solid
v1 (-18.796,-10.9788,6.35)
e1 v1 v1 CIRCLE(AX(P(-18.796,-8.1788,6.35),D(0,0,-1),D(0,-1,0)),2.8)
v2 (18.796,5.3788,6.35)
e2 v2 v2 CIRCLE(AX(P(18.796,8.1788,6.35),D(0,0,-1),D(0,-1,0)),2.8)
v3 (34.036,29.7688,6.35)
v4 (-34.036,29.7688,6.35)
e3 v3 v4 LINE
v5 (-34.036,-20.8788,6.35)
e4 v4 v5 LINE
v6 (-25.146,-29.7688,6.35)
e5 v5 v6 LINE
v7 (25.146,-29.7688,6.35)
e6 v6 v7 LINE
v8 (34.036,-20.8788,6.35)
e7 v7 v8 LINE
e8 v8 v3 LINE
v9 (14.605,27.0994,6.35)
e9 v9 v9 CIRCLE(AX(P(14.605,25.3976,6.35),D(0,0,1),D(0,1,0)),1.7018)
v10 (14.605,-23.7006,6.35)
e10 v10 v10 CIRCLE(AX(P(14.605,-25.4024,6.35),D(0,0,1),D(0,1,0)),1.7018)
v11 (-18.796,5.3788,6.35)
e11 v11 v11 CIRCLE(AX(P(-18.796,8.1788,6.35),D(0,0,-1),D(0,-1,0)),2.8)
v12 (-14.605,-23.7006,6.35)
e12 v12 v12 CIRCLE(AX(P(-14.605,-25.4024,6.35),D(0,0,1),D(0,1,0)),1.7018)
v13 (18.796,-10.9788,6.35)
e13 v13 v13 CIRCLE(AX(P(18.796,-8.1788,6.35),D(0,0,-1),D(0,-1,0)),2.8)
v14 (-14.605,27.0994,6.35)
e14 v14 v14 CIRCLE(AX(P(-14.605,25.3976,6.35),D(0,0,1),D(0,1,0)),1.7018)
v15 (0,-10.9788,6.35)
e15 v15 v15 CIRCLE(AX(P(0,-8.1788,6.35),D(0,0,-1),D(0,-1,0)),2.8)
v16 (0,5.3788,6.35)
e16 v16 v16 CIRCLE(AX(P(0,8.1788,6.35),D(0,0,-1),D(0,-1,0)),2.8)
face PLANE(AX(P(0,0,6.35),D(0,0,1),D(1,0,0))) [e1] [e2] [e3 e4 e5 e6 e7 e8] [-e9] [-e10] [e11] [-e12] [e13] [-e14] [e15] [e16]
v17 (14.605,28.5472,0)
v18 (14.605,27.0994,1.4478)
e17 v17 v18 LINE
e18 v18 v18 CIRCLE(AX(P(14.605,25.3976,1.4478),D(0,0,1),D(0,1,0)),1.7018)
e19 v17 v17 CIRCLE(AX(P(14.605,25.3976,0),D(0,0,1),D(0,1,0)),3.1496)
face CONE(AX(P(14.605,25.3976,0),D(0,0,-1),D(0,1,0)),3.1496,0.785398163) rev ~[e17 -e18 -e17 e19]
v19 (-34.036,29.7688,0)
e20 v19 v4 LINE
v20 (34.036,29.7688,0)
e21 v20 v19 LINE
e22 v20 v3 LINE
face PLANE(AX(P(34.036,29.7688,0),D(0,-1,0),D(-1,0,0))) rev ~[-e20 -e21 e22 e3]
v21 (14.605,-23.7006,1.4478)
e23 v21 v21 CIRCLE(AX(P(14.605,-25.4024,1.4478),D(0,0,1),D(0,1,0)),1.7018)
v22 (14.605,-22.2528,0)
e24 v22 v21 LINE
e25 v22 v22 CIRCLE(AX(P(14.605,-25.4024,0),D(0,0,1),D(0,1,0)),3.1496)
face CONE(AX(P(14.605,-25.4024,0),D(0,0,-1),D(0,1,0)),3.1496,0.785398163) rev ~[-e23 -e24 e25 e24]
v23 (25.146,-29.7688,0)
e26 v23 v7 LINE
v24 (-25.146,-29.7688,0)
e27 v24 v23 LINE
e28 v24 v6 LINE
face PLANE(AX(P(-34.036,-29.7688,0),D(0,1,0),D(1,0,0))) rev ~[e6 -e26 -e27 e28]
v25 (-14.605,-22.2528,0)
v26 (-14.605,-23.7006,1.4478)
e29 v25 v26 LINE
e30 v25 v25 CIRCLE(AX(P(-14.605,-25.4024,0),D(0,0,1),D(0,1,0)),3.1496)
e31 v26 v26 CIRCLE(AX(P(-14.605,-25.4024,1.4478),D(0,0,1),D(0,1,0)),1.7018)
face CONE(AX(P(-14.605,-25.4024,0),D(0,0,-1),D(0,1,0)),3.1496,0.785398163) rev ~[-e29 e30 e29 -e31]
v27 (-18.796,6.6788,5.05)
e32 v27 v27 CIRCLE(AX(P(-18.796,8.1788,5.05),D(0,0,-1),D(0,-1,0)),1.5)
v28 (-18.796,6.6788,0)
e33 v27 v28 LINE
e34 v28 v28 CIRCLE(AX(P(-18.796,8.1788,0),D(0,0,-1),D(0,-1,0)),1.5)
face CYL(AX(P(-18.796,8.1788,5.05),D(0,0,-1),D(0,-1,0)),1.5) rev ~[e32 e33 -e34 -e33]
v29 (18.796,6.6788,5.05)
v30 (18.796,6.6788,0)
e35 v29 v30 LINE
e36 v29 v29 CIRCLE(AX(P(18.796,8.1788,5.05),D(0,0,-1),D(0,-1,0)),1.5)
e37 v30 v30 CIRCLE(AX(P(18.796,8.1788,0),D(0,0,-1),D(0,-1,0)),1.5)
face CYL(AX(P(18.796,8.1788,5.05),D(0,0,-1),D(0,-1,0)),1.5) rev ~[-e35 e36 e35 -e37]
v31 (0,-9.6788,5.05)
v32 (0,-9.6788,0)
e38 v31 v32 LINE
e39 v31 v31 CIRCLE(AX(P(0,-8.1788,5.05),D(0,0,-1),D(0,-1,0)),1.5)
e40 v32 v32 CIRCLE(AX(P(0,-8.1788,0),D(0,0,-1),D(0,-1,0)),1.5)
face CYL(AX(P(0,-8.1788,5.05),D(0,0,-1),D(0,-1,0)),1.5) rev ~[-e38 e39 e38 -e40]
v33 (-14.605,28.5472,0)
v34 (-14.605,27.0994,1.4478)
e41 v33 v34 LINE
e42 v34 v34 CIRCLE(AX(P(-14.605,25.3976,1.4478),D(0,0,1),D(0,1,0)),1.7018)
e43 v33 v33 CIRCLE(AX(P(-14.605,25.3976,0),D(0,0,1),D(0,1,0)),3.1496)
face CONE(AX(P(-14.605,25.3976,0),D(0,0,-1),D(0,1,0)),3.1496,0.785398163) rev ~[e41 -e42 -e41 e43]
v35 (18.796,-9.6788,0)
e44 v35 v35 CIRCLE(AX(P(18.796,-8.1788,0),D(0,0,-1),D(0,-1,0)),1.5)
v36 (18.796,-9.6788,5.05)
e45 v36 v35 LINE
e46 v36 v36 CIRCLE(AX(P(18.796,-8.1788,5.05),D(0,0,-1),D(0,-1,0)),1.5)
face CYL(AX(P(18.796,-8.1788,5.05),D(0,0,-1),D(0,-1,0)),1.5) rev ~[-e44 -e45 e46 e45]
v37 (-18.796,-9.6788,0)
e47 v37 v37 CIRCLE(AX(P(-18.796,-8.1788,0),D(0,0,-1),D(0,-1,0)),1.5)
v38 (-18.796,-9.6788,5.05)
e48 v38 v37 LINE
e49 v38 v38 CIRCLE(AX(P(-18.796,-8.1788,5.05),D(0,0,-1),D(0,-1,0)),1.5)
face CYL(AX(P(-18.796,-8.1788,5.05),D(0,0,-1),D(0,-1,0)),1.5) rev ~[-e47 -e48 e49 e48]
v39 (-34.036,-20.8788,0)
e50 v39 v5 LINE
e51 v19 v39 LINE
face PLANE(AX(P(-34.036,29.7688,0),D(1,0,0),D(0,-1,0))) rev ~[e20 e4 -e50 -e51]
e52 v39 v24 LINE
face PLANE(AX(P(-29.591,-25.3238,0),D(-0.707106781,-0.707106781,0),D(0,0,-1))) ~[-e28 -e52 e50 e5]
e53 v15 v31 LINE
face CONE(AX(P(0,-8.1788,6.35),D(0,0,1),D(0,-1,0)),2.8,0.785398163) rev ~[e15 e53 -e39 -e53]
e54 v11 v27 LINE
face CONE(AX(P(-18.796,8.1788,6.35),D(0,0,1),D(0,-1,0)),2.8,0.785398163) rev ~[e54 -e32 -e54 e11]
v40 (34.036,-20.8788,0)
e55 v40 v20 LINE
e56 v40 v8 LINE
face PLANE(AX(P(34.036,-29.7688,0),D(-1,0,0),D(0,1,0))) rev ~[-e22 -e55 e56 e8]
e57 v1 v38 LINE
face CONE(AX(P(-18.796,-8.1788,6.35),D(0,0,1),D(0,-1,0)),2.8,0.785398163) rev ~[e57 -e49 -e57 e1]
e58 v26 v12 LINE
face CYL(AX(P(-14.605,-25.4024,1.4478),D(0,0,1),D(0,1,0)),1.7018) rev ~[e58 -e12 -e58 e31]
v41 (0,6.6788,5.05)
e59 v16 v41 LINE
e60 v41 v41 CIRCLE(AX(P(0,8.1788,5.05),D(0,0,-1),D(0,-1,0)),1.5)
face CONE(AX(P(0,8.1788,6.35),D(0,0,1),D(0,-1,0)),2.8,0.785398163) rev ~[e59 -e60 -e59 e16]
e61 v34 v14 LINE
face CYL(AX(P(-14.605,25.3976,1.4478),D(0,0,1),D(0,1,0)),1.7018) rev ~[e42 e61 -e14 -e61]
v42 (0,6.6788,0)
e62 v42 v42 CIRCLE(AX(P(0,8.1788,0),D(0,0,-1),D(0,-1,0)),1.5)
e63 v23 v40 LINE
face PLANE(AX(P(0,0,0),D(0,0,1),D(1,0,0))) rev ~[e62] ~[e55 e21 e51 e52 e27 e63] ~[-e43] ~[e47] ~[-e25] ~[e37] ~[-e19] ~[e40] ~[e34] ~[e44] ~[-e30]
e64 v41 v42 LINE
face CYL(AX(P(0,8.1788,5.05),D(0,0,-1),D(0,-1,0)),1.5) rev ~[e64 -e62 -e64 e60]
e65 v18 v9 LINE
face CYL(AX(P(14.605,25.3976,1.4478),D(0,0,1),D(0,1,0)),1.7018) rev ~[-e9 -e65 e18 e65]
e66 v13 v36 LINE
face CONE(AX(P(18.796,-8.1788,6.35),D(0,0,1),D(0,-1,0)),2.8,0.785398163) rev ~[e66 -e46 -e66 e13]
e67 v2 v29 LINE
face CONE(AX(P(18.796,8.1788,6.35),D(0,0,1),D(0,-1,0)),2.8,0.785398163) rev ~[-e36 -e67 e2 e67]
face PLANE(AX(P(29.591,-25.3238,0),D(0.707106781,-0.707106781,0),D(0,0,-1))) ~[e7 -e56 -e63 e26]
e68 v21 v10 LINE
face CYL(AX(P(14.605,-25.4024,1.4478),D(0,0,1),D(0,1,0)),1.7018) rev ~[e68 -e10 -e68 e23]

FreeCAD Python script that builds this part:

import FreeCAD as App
import Part
import Sketcher

V = App.Vector
Q = App.Units.Quantity


def edges_at(feature, points):
    """Names of the edges that pass closest to the given points."""
    edges = feature.Shape.Edges
    near = lambda p: min(range(len(edges)), key=lambda i: edges[i].distToShape(Part.Vertex(*p))[0])
    return sorted({f"Edge{near(p) + 1}" for p in points})


def add_polygon(sketch, points):
    """Adds a closed chain of lines whose ends are joined by coincident constraints."""
    first, n = sketch.GeometryCount, len(points)
    for a, b in zip(points, points[1:] + points[:1]):
        sketch.addGeometry(Part.LineSegment(App.Vector(*a, 0), App.Vector(*b, 0)), False)
    for i in range(n):
        sketch.addConstraint(Sketcher.Constraint("Coincident", first + i, 2, first + (i + 1) % n, 1))

doc = App.newDocument("Part")
params = doc.addObject("Spreadsheet::Sheet", "Params")
for row, (alias, value) in enumerate([
    ("sketch1_width", "2.68 in"),
    ("sketch1_height", "2.344 in"),
    ("pad1_length", "0.25 in"),
    ("hole_diameter", "0.1181102 in"),
    ("hole_depth", "1 in"),
    ("hole_csink_diameter", "5.6 mm"),
    ("chamfer_size", "0.35 in"),
    ("sketch3_diameter", "0.134 in"),
    ("hole2_diameter", "0.134 in"),
    ("hole2_csink_diameter", "0.248 in"),
], start=1):
    params.set(f"A{row}", alias)
    params.set(f"B{row}", "=" + value)
    params.setAlias(f"B{row}", alias)

body = doc.addObject("PartDesign::Body", "Body")

sketch1 = body.newObject("Sketcher::SketchObject", "Sketch")
sketch1.AttachmentSupport = (doc.getObject("XY_Plane"), [""])
sketch1.MapMode = "FlatFace"
add_polygon(sketch1, [(-34, 30), (-34, -30), (34, -30), (34, 30)])
sketch1.addConstraint([
    Sketcher.Constraint("Vertical", 0),
    Sketcher.Constraint("Horizontal", 1),
    Sketcher.Constraint("Vertical", 2),
    Sketcher.Constraint("Horizontal", 3),
    Sketcher.Constraint("Symmetric", 0, 2, 2, 2, -1, 1),
    Sketcher.Constraint("DistanceX", 1, 1, 1, 2, Q("2.68 in")),
    Sketcher.Constraint("DistanceY", 0, 2, 0, 1, Q("2.344 in")),
])
sketch1.setExpression("Constraints[9]", "Params.sketch1_width")
sketch1.setExpression("Constraints[10]", "Params.sketch1_height")
pad1 = body.newObject("PartDesign::Pad", "Pad")
pad1.Profile = sketch1
pad1.setExpression("Length", "Params.pad1_length")

sketch2 = body.newObject("Sketcher::SketchObject", "Sketch001")
sketch2.AttachmentSupport = (doc.getObject("XY_Plane"), [""])
sketch2.MapMode = "FlatFace"
sketch2.AttachmentOffset = App.Placement(V(0, 0, 0.25 * 25.4), App.Rotation())
sketch2.addGeometry([
    Part.Circle(V(-18.8, 8.2, 0), V(0, 0, 1), 1.5),
    Part.Circle(V(-18.8, -8.2, 0), V(0, 0, 1), 1.5),
    Part.Circle(V(18.8, -8.2, 0), V(0, 0, 1), 1.5),
    Part.Circle(V(18.8, 8.2, 0), V(0, 0, 1), 1.5),
    Part.Circle(V(0, 8.2, 0), V(0, 0, 1), 1.5),
    Part.Circle(V(0, -8.2, 0), V(0, 0, 1), 1.5),
], False)
sketch2.addConstraint([
    Sketcher.Constraint("Equal", 0, 1),
    Sketcher.Constraint("Equal", 1, 2),
    Sketcher.Constraint("Equal", 2, 3),
    Sketcher.Constraint("Equal", 3, 4),
    Sketcher.Constraint("Equal", 4, 5),
    Sketcher.Constraint("Symmetric", 0, 3, 2, 3, -1, 1),
    Sketcher.Constraint("Symmetric", 1, 3, 3, 3, -1, 1),
    Sketcher.Constraint("Symmetric", 4, 3, 5, 3, -1, 1),
    Sketcher.Constraint("Symmetric", 1, 3, 2, 3, -2),
    Sketcher.Constraint("PointOnObject", 4, 3, -2),
    Sketcher.Constraint("Horizontal", 3, 3, 4, 3),
    Sketcher.Constraint("Diameter", 0, Q("0.1181 in")),
    Sketcher.Constraint("DistanceX", 0, 3, -1, 1, Q("0.74 in")),
    Sketcher.Constraint("DistanceY", -1, 1, 0, 3, Q("0.322 in")),
])
doc.recompute()
hole = body.newObject("PartDesign::Hole", "Hole")
hole.Profile = sketch2
hole.ThreadType = "None"
hole.setExpression("Diameter", "Params.hole_diameter")
hole.DepthType = "Dimension"
hole.setExpression("Depth", "Params.hole_depth")
hole.DrillPoint = "Angled"
hole.DrillPointAngle = 118
hole.HoleCutType = "Countersink"
hole.setExpression("HoleCutDiameter", "Params.hole_csink_diameter")
hole.HoleCutCountersinkAngle = 90
doc.recompute()

chamfer = body.newObject("PartDesign::Chamfer", "Chamfer")
chamfer.Base = (hole, edges_at(hole, [(-34.036, -29.769, 3.175), (34.036, -29.769, 3.175)]))
chamfer.setExpression("Size", "Params.chamfer_size")

sketch3 = body.newObject("Sketcher::SketchObject", "Sketch002")
sketch3.AttachmentSupport = (doc.getObject("XY_Plane"), [""])
sketch3.MapMode = "FlatFace"
sketch3.addGeometry([
    Part.Circle(V(14.6, -25.4, 0), V(0, 0, 1), 1.7),
    Part.Circle(V(-14.6, -25.4, 0), V(0, 0, 1), 1.7),
    Part.Circle(V(-14.6, 25.4, 0), V(0, 0, 1), 1.7),
    Part.Circle(V(14.6, 25.4, 0), V(0, 0, 1), 1.7),
], False)
sketch3.addConstraint([
    Sketcher.Constraint("Equal", 0, 1),
    Sketcher.Constraint("Equal", 1, 2),
    Sketcher.Constraint("Equal", 2, 3),
    Sketcher.Constraint("Symmetric", 0, 3, 1, 3, -2),
    Sketcher.Constraint("Symmetric", 2, 3, 3, 3, -2),
    Sketcher.Constraint("Vertical", 1, 3, 2, 3),
    Sketcher.Constraint("Diameter", 0, Q("0.134 in")),
    Sketcher.Constraint("DistanceY", 1, 3, 2, 3, Q("2 in")),
    Sketcher.Constraint("DistanceX", 1, 3, 0, 3, Q("1.15 in")),
    Sketcher.Constraint("DistanceY", 0, 3, -1, 1, Q("1.0001 in")),
])
sketch3.setExpression("Constraints[6]", "Params.sketch3_diameter")
doc.recompute()
hole2 = body.newObject("PartDesign::Hole", "Hole001")
hole2.Profile = sketch3
hole2.ThreadType = "None"
hole2.setExpression("Diameter", "Params.hole2_diameter")
hole2.DepthType = "ThroughAll"
hole2.HoleCutType = "Countersink"
hole2.setExpression("HoleCutDiameter", "Params.hole2_csink_diameter")
hole2.HoleCutCountersinkAngle = 90
hole2.Reversed = True

doc.recompute()
